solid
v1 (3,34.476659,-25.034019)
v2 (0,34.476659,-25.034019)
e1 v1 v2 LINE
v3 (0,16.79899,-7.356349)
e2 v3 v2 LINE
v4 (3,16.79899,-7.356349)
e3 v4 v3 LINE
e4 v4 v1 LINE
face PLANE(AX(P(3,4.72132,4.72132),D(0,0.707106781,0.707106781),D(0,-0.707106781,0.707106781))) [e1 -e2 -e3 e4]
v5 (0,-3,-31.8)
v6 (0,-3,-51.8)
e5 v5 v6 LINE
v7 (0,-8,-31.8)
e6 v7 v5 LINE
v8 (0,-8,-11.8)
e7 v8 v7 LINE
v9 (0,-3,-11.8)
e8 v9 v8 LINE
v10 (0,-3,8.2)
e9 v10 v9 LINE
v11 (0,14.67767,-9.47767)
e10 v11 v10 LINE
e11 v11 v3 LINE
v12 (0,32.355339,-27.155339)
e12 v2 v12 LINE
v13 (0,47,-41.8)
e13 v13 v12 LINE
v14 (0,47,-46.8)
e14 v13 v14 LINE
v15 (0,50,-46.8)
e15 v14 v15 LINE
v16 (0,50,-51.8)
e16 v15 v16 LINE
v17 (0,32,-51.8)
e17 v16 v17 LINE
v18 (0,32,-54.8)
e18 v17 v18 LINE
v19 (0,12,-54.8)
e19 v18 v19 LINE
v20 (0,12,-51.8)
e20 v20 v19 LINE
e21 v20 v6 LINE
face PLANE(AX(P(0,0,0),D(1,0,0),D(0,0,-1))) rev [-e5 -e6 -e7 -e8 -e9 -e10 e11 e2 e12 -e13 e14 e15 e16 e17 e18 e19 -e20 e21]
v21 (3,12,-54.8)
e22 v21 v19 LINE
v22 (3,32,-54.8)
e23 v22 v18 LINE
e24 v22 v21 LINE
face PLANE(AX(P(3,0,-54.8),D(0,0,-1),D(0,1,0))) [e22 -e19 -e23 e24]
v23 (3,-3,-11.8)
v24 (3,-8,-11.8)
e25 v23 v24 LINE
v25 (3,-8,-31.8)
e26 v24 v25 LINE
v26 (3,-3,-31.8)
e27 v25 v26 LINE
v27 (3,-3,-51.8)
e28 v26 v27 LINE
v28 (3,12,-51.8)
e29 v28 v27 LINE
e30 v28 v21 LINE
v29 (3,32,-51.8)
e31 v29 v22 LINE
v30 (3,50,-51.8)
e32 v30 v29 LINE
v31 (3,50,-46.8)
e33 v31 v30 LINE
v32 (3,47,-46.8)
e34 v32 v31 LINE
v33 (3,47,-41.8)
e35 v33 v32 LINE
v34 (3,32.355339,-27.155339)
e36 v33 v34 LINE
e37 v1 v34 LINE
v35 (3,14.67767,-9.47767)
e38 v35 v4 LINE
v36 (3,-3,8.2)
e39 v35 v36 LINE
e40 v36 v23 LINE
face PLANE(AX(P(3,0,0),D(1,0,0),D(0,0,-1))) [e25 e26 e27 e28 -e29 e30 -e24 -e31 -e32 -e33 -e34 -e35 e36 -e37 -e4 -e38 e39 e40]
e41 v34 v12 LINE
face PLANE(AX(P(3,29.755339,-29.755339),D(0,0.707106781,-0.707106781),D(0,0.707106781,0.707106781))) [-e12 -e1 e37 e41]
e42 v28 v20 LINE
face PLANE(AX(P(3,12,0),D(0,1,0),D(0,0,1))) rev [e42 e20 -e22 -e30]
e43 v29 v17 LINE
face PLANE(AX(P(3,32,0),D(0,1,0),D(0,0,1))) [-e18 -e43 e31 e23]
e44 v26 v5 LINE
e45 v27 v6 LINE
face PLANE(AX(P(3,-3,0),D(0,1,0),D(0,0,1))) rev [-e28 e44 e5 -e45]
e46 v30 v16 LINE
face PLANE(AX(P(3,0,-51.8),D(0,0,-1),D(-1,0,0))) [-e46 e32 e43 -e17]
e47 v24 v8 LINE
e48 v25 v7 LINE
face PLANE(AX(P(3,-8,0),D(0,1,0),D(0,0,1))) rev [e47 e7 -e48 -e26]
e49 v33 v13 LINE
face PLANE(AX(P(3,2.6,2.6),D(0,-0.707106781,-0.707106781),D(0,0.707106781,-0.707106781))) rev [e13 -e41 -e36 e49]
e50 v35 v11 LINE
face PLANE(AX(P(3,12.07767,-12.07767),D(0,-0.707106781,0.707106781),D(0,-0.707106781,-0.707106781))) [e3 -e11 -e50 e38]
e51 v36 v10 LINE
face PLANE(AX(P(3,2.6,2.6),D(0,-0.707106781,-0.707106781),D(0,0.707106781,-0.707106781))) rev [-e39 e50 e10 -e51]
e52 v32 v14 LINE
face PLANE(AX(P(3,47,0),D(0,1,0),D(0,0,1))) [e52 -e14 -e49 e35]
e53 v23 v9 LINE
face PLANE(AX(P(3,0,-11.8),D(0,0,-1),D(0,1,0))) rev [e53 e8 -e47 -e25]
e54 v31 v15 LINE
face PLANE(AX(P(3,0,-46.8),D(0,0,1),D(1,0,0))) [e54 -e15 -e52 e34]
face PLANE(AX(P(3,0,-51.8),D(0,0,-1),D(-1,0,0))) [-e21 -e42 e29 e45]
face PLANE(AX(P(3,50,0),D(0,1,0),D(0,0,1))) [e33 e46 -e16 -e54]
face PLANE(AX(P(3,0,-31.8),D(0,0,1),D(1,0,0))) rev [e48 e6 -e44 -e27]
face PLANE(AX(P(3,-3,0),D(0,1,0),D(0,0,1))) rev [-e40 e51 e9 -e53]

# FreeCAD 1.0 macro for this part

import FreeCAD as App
import Part
import Sketcher

V = App.Vector
Q = App.Units.Quantity


def add_polygon(sketch, points):
    """Adds a closed chain of lines whose ends are joined by coincident constraints."""
    first, n = sketch.GeometryCount, len(points)
    for a, b in zip(points, points[1:] + points[:1]):
        sketch.addGeometry(Part.LineSegment(App.Vector(*a, 0), App.Vector(*b, 0)), False)
    for i in range(n):
        sketch.addConstraint(Sketcher.Constraint("Coincident", first + i, 2, first + (i + 1) % n, 1))

doc = App.newDocument("Part")
body = doc.addObject("PartDesign::Body", "Body")

sketch1 = body.newObject("Sketcher::SketchObject", "Sketch")
sketch1.AttachmentSupport = (doc.getObject("YZ_Plane"), [""])
sketch1.MapMode = "FlatFace"
add_polygon(sketch1, [(32, -51.8), (50, -51.8), (50, -46.8), (47, -46.8), (47, -41.8), (32.4, -27.2), (34.5, -25), (16.8, -7.4), (14.7, -9.5), (-3, 8.2), (-3, -11.8), (-8, -11.8), (-8, -31.8), (-3, -31.8), (-3, -51.8), (12, -51.8), (12, -54.8), (32, -54.8)])
sketch1.addConstraint(Sketcher.Constraint("Horizontal", 0))
sketch1.addConstraint(Sketcher.Constraint("Vertical", 1))
sketch1.addConstraint(Sketcher.Constraint("Horizontal", 2))
sketch1.addConstraint(Sketcher.Constraint("Vertical", 3))
sketch1.addConstraint(Sketcher.Constraint("Vertical", 9))
sketch1.addConstraint(Sketcher.Constraint("Horizontal", 10))
sketch1.addConstraint(Sketcher.Constraint("Vertical", 11))
sketch1.addConstraint(Sketcher.Constraint("Horizontal", 12))
sketch1.addConstraint(Sketcher.Constraint("Vertical", 13))
sketch1.addConstraint(Sketcher.Constraint("Horizontal", 14))
sketch1.addConstraint(Sketcher.Constraint("Vertical", 15))
sketch1.addConstraint(Sketcher.Constraint("Horizontal", 16))
sketch1.addConstraint(Sketcher.Constraint("Vertical", 17))
sketch1.addConstraint(Sketcher.Constraint("Perpendicular", 4, 5))
sketch1.addConstraint(Sketcher.Constraint("Perpendicular", 5, 6))
sketch1.addConstraint(Sketcher.Constraint("Perpendicular", 6, 7))
sketch1.addConstraint(Sketcher.Constraint("Perpendicular", 7, 8))
sketch1.addConstraint(Sketcher.Constraint("Horizontal", 0, 2, 13, 2))
sketch1.addConstraint(Sketcher.Constraint("Vertical", 9, 2, 12, 2))
sketch1.addConstraint(Sketcher.Constraint("Equal", 12, 1))
sketch1.addConstraint(Sketcher.Constraint("Equal", 1, 3))
sketch1.addConstraint(Sketcher.Constraint("Equal", 16, 9))
sketch1.addConstraint(Sketcher.Constraint("Equal", 9, 11))
sketch1.addConstraint(Sketcher.Constraint("Equal", 11, 13))
sketch1.addConstraint(Sketcher.Constraint("Equal", 2, 15))
sketch1.addConstraint(Sketcher.Constraint("Equal", 5, 7))
sketch1.addConstraint(Sketcher.Constraint("Equal", 6, 8))
sketch1.addConstraint(Sketcher.Constraint("DistanceX", 0, 1, 0, 2, Q("18 mm")))
sketch1.addConstraint(Sketcher.Constraint("DistanceX", 2, 2, 2, 1, Q("3 mm")))
sketch1.addConstraint(Sketcher.Constraint("DistanceX", 10, 2, 10, 1, Q("5 mm")))
sketch1.addConstraint(Sketcher.Constraint("DistanceX", 14, 1, 14, 2, Q("15 mm")))
sketch1.addConstraint(Sketcher.Constraint("DistanceX", 16, 1, 16, 2, Q("20 mm")))
sketch1.addConstraint(Sketcher.Constraint("Distance", 5, Q("3 mm")))
sketch1.addConstraint(Sketcher.Constraint("Distance", 6, Q("25 mm")))
sketch1.addConstraint(Sketcher.Constraint("DistanceX", -1, 1, 0, 2, Q("50 mm")))
sketch1.addConstraint(Sketcher.Constraint("DistanceY", 0, 2, -1, 1, Q("51.8 mm")))
pad1 = body.newObject("PartDesign::Pad", "Pad")
pad1.Profile = sketch1
pad1.Length = 3

doc.recompute()
